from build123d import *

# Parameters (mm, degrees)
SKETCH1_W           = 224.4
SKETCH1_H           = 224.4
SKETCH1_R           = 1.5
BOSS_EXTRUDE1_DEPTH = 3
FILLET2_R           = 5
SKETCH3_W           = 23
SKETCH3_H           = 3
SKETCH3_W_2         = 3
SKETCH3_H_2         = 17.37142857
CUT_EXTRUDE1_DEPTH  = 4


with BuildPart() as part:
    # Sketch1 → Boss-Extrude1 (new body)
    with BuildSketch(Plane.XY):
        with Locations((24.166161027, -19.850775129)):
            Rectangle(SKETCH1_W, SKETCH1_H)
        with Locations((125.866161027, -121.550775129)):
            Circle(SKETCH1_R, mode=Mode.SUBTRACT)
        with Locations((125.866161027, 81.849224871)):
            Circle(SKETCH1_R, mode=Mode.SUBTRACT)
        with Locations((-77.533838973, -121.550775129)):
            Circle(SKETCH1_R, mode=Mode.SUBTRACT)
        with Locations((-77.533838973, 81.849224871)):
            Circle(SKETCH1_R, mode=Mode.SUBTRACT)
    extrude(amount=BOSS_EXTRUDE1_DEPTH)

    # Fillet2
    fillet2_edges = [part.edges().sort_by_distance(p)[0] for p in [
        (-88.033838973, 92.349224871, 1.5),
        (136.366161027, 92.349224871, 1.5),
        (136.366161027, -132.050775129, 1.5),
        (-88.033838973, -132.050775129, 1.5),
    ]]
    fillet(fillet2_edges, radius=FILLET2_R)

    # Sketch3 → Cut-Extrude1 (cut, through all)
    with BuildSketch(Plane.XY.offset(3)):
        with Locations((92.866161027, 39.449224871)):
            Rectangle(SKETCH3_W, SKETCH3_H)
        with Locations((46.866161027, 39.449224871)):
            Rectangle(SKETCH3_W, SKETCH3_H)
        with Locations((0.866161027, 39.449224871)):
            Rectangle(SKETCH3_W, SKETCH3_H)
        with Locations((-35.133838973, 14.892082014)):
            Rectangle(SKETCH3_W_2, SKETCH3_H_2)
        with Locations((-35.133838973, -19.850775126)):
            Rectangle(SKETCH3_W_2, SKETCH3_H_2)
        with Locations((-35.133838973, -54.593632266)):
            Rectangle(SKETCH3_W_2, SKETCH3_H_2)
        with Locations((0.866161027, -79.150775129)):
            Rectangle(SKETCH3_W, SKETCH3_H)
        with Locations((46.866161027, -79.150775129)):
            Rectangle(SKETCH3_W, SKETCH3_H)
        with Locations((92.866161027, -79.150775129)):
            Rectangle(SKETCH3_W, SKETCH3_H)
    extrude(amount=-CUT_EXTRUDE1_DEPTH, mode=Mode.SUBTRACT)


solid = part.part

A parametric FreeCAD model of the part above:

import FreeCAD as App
import Part
import Sketcher


def edges_at(feature, points):
    """Names of the edges that pass closest to the given points."""
    edges = feature.Shape.Edges
    near = lambda p: min(range(len(edges)), key=lambda i: edges[i].distToShape(Part.Vertex(*p))[0])
    return sorted({f"Edge{near(p) + 1}" for p in points})


def add_polygon(sketch, points):
    """Adds a closed chain of lines whose ends are joined by coincident constraints."""
    first, n = sketch.GeometryCount, len(points)
    for a, b in zip(points, points[1:] + points[:1]):
        sketch.addGeometry(Part.LineSegment(App.Vector(*a, 0), App.Vector(*b, 0)), False)
    for i in range(n):
        sketch.addConstraint(Sketcher.Constraint("Coincident", first + i, 2, first + (i + 1) % n, 1))

doc = App.newDocument("Part")
body = doc.addObject("PartDesign::Body", "Body")

# Sketch on XY plane
sketch1 = doc.addObject("Sketcher::SketchObject", "Sketch")
body.addObject(sketch1)
sketch1.AttachmentSupport = (doc.XY_Plane, [""])
sketch1.MapMode = "FlatFace"
add_polygon(sketch1, [(-88.033839, 92.349225), (-88.033839, -132.050775), (136.366161, -132.050775), (136.366161, 92.349225)])  # lines 0-3
sketch1.addGeometry(Part.Circle(App.Vector(-77.533839, -121.550775, 0), App.Vector(0, 0, 1), 1.5), False)  # 4
sketch1.addGeometry(Part.Circle(App.Vector(125.866161, -121.550775, 0), App.Vector(0, 0, 1), 1.5), False)  # 5
sketch1.addGeometry(Part.Circle(App.Vector(-77.533839, 81.849225, 0), App.Vector(0, 0, 1), 1.5), False)  # 6
sketch1.addGeometry(Part.Circle(App.Vector(125.866161, 81.849225, 0), App.Vector(0, 0, 1), 1.5), False)  # 7
sketch1.addConstraint(Sketcher.Constraint("Vertical", 0))
sketch1.addConstraint(Sketcher.Constraint("Horizontal", 1))
sketch1.addConstraint(Sketcher.Constraint("Vertical", 2))
sketch1.addConstraint(Sketcher.Constraint("Horizontal", 3))
sketch1.addConstraint(Sketcher.Constraint("Equal", 4, 5))
sketch1.addConstraint(Sketcher.Constraint("Equal", 5, 6))
sketch1.addConstraint(Sketcher.Constraint("Equal", 6, 7))
sketch1.addConstraint(Sketcher.Constraint("Horizontal", 4, 3, 5, 3))
sketch1.addConstraint(Sketcher.Constraint("Horizontal", 6, 3, 7, 3))
sketch1.addConstraint(Sketcher.Constraint("Vertical", 4, 3, 6, 3))
sketch1.addConstraint(Sketcher.Constraint("Vertical", 5, 3, 7, 3))
sketch1.addConstraint(Sketcher.Constraint("Equal", 3, 0))
sketch1.addConstraint(Sketcher.Constraint("Diameter", 4, 3.0))
sketch1.addConstraint(Sketcher.Constraint("DistanceX", 1, 1, 1, 2, 224.4))
sketch1.addConstraint(Sketcher.Constraint("DistanceX", 4, 3, 5, 3, 203.4))
sketch1.addConstraint(Sketcher.Constraint("DistanceY", 4, 3, 6, 3, 203.4))
sketch1.addConstraint(Sketcher.Constraint("DistanceX", 0, 2, 4, 3, 10.5))
sketch1.addConstraint(Sketcher.Constraint("DistanceY", 0, 2, 4, 3, 10.5))
sketch1.addConstraint(Sketcher.Constraint("DistanceX", 4, 3, -1, 1, 77.533839))
sketch1.addConstraint(Sketcher.Constraint("DistanceY", 4, 3, -1, 1, 121.550775))
pad1 = doc.addObject("PartDesign::Pad", "Pad")
body.addObject(pad1)
pad1.Profile = sketch1
pad1.Length = 3
doc.recompute()

fillet = doc.addObject("PartDesign::Fillet", "Fillet")
body.addObject(fillet)
fillet.Base = (pad1, edges_at(pad1, [
    (-88.034, 92.349, 1.5),
    (136.366, 92.349, 1.5),
    (136.366, -132.051, 1.5),
    (-88.034, -132.051, 1.5),
]))
fillet.Radius = 5

# Sketch on XY plane
sketch2 = doc.addObject("Sketcher::SketchObject", "Sketch001")
body.addObject(sketch2)
sketch2.AttachmentSupport = (doc.XY_Plane, [""])
sketch2.MapMode = "FlatFace"
sketch2.AttachmentOffset = App.Placement(App.Vector(0, 0, 3), App.Rotation())
add_polygon(sketch2, [(81.366161, 40.949225), (81.366161, 37.949225), (104.366161, 37.949225), (104.366161, 40.949225)])  # lines 0-3
add_polygon(sketch2, [(35.366161, 40.949225), (35.366161, 37.949225), (58.366161, 37.949225), (58.366161, 40.949225)])  # lines 4-7
add_polygon(sketch2, [(-10.633839, 40.949225), (-10.633839, 37.949225), (12.366161, 37.949225), (12.366161, 40.949225)])  # lines 8-11
add_polygon(sketch2, [(-36.633839, 23.577796), (-36.633839, 6.206368), (-33.633839, 6.206368), (-33.633839, 23.577796)])  # lines 12-15
add_polygon(sketch2, [(-36.633839, -11.165061), (-36.633839, -28.536489), (-33.633839, -28.536489), (-33.633839, -11.165061)])  # lines 16-19
add_polygon(sketch2, [(-36.633839, -45.907918), (-36.633839, -63.279347), (-33.633839, -63.279347), (-33.633839, -45.907918)])  # lines 20-23
add_polygon(sketch2, [(-10.633839, -77.650775), (-10.633839, -80.650775), (12.366161, -80.650775), (12.366161, -77.650775)])  # lines 24-27
add_polygon(sketch2, [(35.366161, -77.650775), (35.366161, -80.650775), (58.366161, -80.650775), (58.366161, -77.650775)])  # lines 28-31
add_polygon(sketch2, [(81.366161, -77.650775), (81.366161, -80.650775), (104.366161, -80.650775), (104.366161, -77.650775)])  # lines 32-35
sketch2.addConstraint(Sketcher.Constraint("Vertical", 0))
sketch2.addConstraint(Sketcher.Constraint("Horizontal", 1))
sketch2.addConstraint(Sketcher.Constraint("Vertical", 2))
sketch2.addConstraint(Sketcher.Constraint("Horizontal", 3))
sketch2.addConstraint(Sketcher.Constraint("Vertical", 4))
sketch2.addConstraint(Sketcher.Constraint("Horizontal", 5))
sketch2.addConstraint(Sketcher.Constraint("Vertical", 6))
sketch2.addConstraint(Sketcher.Constraint("Horizontal", 7))
sketch2.addConstraint(Sketcher.Constraint("Vertical", 8))
sketch2.addConstraint(Sketcher.Constraint("Horizontal", 9))
sketch2.addConstraint(Sketcher.Constraint("Vertical", 10))
sketch2.addConstraint(Sketcher.Constraint("Horizontal", 11))
sketch2.addConstraint(Sketcher.Constraint("Vertical", 12))
sketch2.addConstraint(Sketcher.Constraint("Horizontal", 13))
sketch2.addConstraint(Sketcher.Constraint("Vertical", 14))
sketch2.addConstraint(Sketcher.Constraint("Horizontal", 15))
sketch2.addConstraint(Sketcher.Constraint("Vertical", 16))
sketch2.addConstraint(Sketcher.Constraint("Horizontal", 17))
sketch2.addConstraint(Sketcher.Constraint("Vertical", 18))
sketch2.addConstraint(Sketcher.Constraint("Horizontal", 19))
sketch2.addConstraint(Sketcher.Constraint("Vertical", 20))
sketch2.addConstraint(Sketcher.Constraint("Horizontal", 21))
sketch2.addConstraint(Sketcher.Constraint("Vertical", 22))
sketch2.addConstraint(Sketcher.Constraint("Horizontal", 23))
sketch2.addConstraint(Sketcher.Constraint("Vertical", 24))
sketch2.addConstraint(Sketcher.Constraint("Horizontal", 25))
sketch2.addConstraint(Sketcher.Constraint("Vertical", 26))
sketch2.addConstraint(Sketcher.Constraint("Horizontal", 27))
sketch2.addConstraint(Sketcher.Constraint("Vertical", 28))
sketch2.addConstraint(Sketcher.Constraint("Horizontal", 29))
sketch2.addConstraint(Sketcher.Constraint("Vertical", 30))
sketch2.addConstraint(Sketcher.Constraint("Horizontal", 31))
sketch2.addConstraint(Sketcher.Constraint("Vertical", 32))
sketch2.addConstraint(Sketcher.Constraint("Horizontal", 33))
sketch2.addConstraint(Sketcher.Constraint("Vertical", 34))
sketch2.addConstraint(Sketcher.Constraint("Horizontal", 35))
sketch2.addConstraint(Sketcher.Constraint("Horizontal", 1, 2, 4, 2))
sketch2.addConstraint(Sketcher.Constraint("Horizontal", 3, 2, 6, 2))
sketch2.addConstraint(Sketcher.Constraint("Horizontal", 5, 2, 8, 2))
sketch2.addConstraint(Sketcher.Constraint("Horizontal", 7, 2, 10, 2))
sketch2.addConstraint(Sketcher.Constraint("Horizontal", 25, 2, 28, 2))
sketch2.addConstraint(Sketcher.Constraint("Horizontal", 27, 2, 30, 2))
sketch2.addConstraint(Sketcher.Constraint("Horizontal", 29, 2, 32, 2))
sketch2.addConstraint(Sketcher.Constraint("Horizontal", 31, 2, 34, 2))
sketch2.addConstraint(Sketcher.Constraint("Vertical", 15, 2, 16, 2))
sketch2.addConstraint(Sketcher.Constraint("Vertical", 14, 2, 17, 2))
sketch2.addConstraint(Sketcher.Constraint("Vertical", 19, 2, 20, 2))
sketch2.addConstraint(Sketcher.Constraint("Vertical", 18, 2, 21, 2))
sketch2.addConstraint(Sketcher.Constraint("Vertical", 11, 2, 24, 2))
sketch2.addConstraint(Sketcher.Constraint("Vertical", 10, 2, 25, 2))
sketch2.addConstraint(Sketcher.Constraint("Vertical", 7, 2, 28, 2))
sketch2.addConstraint(Sketcher.Constraint("Vertical", 6, 2, 29, 2))
sketch2.addConstraint(Sketcher.Constraint("Vertical", 3, 2, 32, 2))
sketch2.addConstraint(Sketcher.Constraint("Vertical", 2, 2, 33, 2))
sketch2.addConstraint(Sketcher.Constraint("Equal", 3, 5))
sketch2.addConstraint(Sketcher.Constraint("Equal", 7, 9))
sketch2.addConstraint(Sketcher.Constraint("Equal", 23, 0))
sketch2.addConstraint(Sketcher.Constraint("Equal", 14, 16))
sketch2.addConstraint(Sketcher.Constraint("Equal", 18, 20))
sketch2.addConstraint(Sketcher.Constraint("Equal", 10, 24))
sketch2.addConstraint(Sketcher.Constraint("DistanceX", 1, 1, 1, 2, 23.0))
sketch2.addConstraint(Sketcher.Constraint("DistanceX", 13, 1, 13, 2, 3.0))
sketch2.addConstraint(Sketcher.Constraint("DistanceX", 4, 2, 0, 2, 46.0))
sketch2.addConstraint(Sketcher.Constraint("DistanceX", 8, 2, 4, 2, 46.0))
sketch2.addConstraint(Sketcher.Constraint("DistanceX", 12, 2, 8, 2, 26.0))
sketch2.addConstraint(Sketcher.Constraint("DistanceY", 12, 2, 12, 1, 17.371429))
sketch2.addConstraint(Sketcher.Constraint("DistanceX", -1, 1, 0, 2, 81.366161))
sketch2.addConstraint(Sketcher.Constraint("DistanceY", 16, 2, -1, 1, 28.536489))
sketch2.addConstraint(Sketcher.Constraint("DistanceY", 14, 2, 8, 2, 14.371429))
sketch2.addConstraint(Sketcher.Constraint("DistanceY", 18, 2, 13, 2, 17.371429))
sketch2.addConstraint(Sketcher.Constraint("DistanceY", 22, 2, 17, 2, 17.371429))
sketch2.addConstraint(Sketcher.Constraint("DistanceY", 24, 2, 21, 2, 17.371429))
pocket1 = doc.addObject("PartDesign::Pocket", "Pocket")
body.addObject(pocket1)
pocket1.Profile = sketch2
pocket1.Type = "ThroughAll"

doc.recompute()
